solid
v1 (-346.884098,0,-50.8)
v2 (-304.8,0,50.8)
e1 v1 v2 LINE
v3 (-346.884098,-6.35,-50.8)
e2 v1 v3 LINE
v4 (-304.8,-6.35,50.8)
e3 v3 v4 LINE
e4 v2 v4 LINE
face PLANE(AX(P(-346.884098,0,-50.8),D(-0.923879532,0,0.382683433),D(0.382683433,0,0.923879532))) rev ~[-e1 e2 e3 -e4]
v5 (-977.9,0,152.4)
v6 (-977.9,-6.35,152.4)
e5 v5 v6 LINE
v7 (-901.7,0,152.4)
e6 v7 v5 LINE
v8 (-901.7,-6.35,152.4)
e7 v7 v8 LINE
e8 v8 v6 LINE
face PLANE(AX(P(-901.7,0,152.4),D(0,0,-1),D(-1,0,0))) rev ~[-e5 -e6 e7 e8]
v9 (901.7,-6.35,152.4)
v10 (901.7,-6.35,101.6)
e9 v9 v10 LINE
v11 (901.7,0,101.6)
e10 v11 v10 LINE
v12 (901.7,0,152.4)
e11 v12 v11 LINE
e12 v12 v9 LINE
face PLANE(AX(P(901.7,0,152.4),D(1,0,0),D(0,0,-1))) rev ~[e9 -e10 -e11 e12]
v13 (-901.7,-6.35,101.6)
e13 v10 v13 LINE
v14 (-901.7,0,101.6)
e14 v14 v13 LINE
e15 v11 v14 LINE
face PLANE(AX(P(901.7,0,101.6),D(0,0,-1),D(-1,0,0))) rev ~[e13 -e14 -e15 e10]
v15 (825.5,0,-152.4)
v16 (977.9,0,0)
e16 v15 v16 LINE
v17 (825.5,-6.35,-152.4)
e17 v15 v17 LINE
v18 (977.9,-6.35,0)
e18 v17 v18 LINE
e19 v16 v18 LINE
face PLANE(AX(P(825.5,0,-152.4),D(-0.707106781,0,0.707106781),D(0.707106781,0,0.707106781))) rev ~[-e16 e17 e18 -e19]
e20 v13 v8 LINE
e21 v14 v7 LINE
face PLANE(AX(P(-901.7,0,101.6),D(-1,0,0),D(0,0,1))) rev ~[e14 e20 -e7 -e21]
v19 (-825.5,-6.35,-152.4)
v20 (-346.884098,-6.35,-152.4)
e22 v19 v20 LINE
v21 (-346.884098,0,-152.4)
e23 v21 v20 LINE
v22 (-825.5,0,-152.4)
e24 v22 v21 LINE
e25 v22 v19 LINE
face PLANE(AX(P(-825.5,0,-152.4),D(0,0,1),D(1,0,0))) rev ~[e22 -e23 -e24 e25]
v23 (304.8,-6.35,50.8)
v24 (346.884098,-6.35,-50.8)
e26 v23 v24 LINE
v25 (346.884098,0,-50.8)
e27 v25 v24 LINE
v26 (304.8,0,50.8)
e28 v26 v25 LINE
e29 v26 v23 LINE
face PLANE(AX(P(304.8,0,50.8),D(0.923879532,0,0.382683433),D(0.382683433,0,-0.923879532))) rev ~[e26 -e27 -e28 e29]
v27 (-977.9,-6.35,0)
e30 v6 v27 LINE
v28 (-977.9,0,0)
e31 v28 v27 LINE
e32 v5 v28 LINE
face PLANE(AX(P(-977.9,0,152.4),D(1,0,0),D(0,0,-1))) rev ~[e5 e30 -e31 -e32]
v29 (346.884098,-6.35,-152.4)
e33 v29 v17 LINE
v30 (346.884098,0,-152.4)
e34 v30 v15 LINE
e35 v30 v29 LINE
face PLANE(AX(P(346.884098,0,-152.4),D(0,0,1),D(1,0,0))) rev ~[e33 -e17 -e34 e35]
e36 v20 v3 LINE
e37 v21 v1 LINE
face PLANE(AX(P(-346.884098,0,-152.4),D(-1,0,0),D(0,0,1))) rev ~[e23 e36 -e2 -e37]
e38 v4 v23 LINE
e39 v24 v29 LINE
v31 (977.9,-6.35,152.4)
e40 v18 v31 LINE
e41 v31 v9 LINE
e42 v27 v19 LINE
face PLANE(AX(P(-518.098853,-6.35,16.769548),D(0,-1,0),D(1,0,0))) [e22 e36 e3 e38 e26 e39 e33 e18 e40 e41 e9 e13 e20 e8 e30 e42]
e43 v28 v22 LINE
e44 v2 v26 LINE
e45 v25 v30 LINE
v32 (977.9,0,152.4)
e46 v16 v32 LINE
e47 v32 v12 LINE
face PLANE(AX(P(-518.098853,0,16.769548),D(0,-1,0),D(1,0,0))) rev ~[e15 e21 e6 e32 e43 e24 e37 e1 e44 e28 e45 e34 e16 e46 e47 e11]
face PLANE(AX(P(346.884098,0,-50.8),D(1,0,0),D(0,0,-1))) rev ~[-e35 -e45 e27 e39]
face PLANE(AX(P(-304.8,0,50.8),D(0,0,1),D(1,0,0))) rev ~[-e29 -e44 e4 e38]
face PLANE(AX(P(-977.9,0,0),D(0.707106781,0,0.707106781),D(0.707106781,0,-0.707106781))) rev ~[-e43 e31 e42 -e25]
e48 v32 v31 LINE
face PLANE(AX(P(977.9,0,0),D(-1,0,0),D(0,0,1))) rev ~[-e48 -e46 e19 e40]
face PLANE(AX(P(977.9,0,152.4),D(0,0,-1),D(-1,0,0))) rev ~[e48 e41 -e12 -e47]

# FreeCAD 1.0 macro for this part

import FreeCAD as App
import Part
import Sketcher

V = App.Vector
Q = App.Units.Quantity


def add_polygon(sketch, points):
    """Adds a closed chain of lines whose ends are joined by coincident constraints."""
    first, n = sketch.GeometryCount, len(points)
    for a, b in zip(points, points[1:] + points[:1]):
        sketch.addGeometry(Part.LineSegment(App.Vector(*a, 0), App.Vector(*b, 0)), False)
    for i in range(n):
        sketch.addConstraint(Sketcher.Constraint("Coincident", first + i, 2, first + (i + 1) % n, 1))

doc = App.newDocument("Part")
body = doc.addObject("PartDesign::Body", "Body")

sketch1 = body.newObject("Sketcher::SketchObject", "Sketch")
sketch1.AttachmentSupport = (doc.getObject("XZ_Plane"), [""])
sketch1.MapMode = "FlatFace"
add_polygon(sketch1, [(-902, 102), (-902, 152), (-978, 152), (-978, 0), (-826, -152), (-347, -152), (-347, -51), (-305, 51), (305, 51), (347, -51), (347, -152), (826, -152), (978, 0), (978, 152), (902, 152), (902, 102)])
sketch1.addConstraint(Sketcher.Constraint("Vertical", 0))
sketch1.addConstraint(Sketcher.Constraint("Horizontal", 1))
sketch1.addConstraint(Sketcher.Constraint("Vertical", 2))
sketch1.addConstraint(Sketcher.Constraint("Horizontal", 4))
sketch1.addConstraint(Sketcher.Constraint("Vertical", 5))
sketch1.addConstraint(Sketcher.Constraint("Horizontal", 7))
sketch1.addConstraint(Sketcher.Constraint("Vertical", 9))
sketch1.addConstraint(Sketcher.Constraint("Horizontal", 10))
sketch1.addConstraint(Sketcher.Constraint("Vertical", 12))
sketch1.addConstraint(Sketcher.Constraint("Horizontal", 13))
sketch1.addConstraint(Sketcher.Constraint("Vertical", 14))
sketch1.addConstraint(Sketcher.Constraint("Horizontal", 15))
sketch1.addConstraint(Sketcher.Constraint("Symmetric", 2, 2, 11, 2, -1, 1))
sketch1.addConstraint(Sketcher.Constraint("Symmetric", 5, 2, 8, 2, -2))
sketch1.addConstraint(Sketcher.Constraint("Symmetric", 3, 2, 10, 2, -2))
sketch1.addConstraint(Sketcher.Constraint("Symmetric", 0, 2, 13, 2, -2))
sketch1.addConstraint(Sketcher.Constraint("PointOnObject", 2, 2, -1))
sketch1.addConstraint(Sketcher.Constraint("Perpendicular", 3, 11))
sketch1.addConstraint(Sketcher.Constraint("Equal", 6, 8))
sketch1.addConstraint(Sketcher.Constraint("DistanceX", 1, 2, 1, 1, Q("3 in")))
sketch1.addConstraint(Sketcher.Constraint("DistanceX", 7, 1, 7, 2, Q("24 in")))
sketch1.addConstraint(Sketcher.Constraint("DistanceX", 15, 2, 15, 1, Q("71 in")))
sketch1.addConstraint(Sketcher.Constraint("DistanceY", 0, 1, 0, 2, Q("2 in")))
sketch1.addConstraint(Sketcher.Constraint("DistanceY", 2, 2, 2, 1, Q("6 in")))
sketch1.addConstraint(Sketcher.Constraint("DistanceY", 5, 1, 5, 2, Q("4 in")))
sketch1.addConstraint(Sketcher.Constraint("DistanceY", 3, 2, -1, 1, Q("6 in")))
sketch1.addConstraint(Sketcher.Constraint("DistanceY", -1, 1, 6, 2, Q("2 in")))
sketch1.addConstraint(Sketcher.Constraint("Angle", 6, Q("67.5 deg")))
pad1 = body.newObject("PartDesign::Pad", "Pad")
pad1.Profile = sketch1
pad1.Length = Q("0.25 in")

doc.recompute()
